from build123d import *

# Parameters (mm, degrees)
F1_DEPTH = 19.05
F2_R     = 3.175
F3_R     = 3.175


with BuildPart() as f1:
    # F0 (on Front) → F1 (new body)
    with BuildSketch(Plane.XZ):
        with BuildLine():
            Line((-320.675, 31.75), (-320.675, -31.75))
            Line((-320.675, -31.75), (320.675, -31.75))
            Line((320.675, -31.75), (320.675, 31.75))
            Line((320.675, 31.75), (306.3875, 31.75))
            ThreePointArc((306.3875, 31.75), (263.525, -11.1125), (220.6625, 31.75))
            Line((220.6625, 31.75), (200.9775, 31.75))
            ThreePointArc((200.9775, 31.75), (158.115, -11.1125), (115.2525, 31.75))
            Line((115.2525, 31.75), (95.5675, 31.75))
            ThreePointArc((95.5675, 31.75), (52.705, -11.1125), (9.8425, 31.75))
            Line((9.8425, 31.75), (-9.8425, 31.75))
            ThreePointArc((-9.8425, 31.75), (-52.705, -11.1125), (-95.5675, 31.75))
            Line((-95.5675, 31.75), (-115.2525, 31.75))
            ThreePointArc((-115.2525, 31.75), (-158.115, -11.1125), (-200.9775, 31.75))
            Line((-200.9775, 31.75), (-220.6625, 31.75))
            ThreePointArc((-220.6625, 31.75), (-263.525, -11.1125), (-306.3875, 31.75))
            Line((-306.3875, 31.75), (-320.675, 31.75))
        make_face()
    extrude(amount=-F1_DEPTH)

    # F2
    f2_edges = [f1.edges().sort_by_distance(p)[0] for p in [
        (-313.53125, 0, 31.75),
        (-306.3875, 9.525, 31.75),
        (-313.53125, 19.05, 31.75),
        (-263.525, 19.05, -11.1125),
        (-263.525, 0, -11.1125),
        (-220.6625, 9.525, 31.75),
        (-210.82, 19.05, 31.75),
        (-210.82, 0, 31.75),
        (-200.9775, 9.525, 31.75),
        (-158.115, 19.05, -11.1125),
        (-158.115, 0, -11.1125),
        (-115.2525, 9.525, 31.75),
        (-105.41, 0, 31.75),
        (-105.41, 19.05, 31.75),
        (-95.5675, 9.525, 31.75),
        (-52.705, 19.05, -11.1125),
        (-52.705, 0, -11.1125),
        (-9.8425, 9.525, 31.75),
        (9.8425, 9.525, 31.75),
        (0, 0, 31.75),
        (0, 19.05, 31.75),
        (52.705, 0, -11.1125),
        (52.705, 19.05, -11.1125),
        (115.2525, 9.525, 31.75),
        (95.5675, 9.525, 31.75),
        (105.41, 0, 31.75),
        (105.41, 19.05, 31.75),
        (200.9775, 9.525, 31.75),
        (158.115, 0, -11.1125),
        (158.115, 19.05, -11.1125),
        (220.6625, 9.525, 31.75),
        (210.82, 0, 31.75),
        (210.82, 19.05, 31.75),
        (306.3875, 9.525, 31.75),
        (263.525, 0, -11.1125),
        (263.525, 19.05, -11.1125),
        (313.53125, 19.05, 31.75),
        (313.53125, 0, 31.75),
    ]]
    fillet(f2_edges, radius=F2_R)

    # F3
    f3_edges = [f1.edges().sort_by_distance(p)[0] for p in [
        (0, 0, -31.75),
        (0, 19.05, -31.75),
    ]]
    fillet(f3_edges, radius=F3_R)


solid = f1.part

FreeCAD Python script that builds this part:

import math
import FreeCAD as App
import Part
import Sketcher
from FreeCAD import Vector
Q = App.Units.Quantity


def edges_at(feature, points):
    """Names of the edges that pass closest to the given points."""
    edges = feature.Shape.Edges
    near = lambda p: min(range(len(edges)), key=lambda i: edges[i].distToShape(Part.Vertex(*p))[0])
    return sorted({f"Edge{near(p) + 1}" for p in points})

doc = App.newDocument("Part")
params = doc.addObject("Spreadsheet::Sheet", "Params")
for row, (alias, value) in enumerate([
    ("sketch1_height", "2.5 in"),
    ("sketch1_radius", "1.6875 in"),
    ("sketch1_width", "25.25 in"),
    ("pad1_length", "0.75 in"),
    ("fillet_radius", "0.125 in"),
    ("fillet2_radius", "0.125 in"),
], start=1):
    params.set(f"A{row}", alias)
    params.set(f"B{row}", "=" + value)
    params.setAlias(f"B{row}", alias)

body = doc.addObject("PartDesign::Body", "Body")

# Sketch on XZ plane
sketch1 = body.newObject("Sketcher::SketchObject", "Sketch")
sketch1.AttachmentSupport = (doc.getObject("XZ_Plane"), [""])
sketch1.MapMode = "FlatFace"
sketch1.addGeometry(Part.LineSegment(Vector(-321, 32, 0), Vector(-321, -32, 0)), False)
sketch1.addGeometry(Part.LineSegment(Vector(-321, -32, 0), Vector(321, -32, 0)), False)
sketch1.addGeometry(Part.LineSegment(Vector(321, -32, 0), Vector(321, 32, 0)), False)
sketch1.addGeometry(Part.LineSegment(Vector(321, 32, 0), Vector(306, 32, 0)), False)
sketch1.addGeometry(Part.ArcOfCircle(Part.Circle(Vector(264, 32, 0), Vector(0, 0, 1), 43), math.radians(180), math.radians(360)), False)
sketch1.addGeometry(Part.LineSegment(Vector(221, 32, 0), Vector(201, 32, 0)), False)
sketch1.addGeometry(Part.ArcOfCircle(Part.Circle(Vector(158, 32, 0), Vector(0, 0, 1), 43), math.radians(180), math.radians(360)), False)
sketch1.addGeometry(Part.LineSegment(Vector(115, 32, 0), Vector(96, 32, 0)), False)
sketch1.addGeometry(Part.ArcOfCircle(Part.Circle(Vector(53, 32, 0), Vector(0, 0, 1), 43), math.radians(180), math.radians(360)), False)
sketch1.addGeometry(Part.LineSegment(Vector(10, 32, 0), Vector(-10, 32, 0)), False)
sketch1.addGeometry(Part.ArcOfCircle(Part.Circle(Vector(-53, 32, 0), Vector(0, 0, 1), 43), math.radians(180), math.radians(360)), False)
sketch1.addGeometry(Part.LineSegment(Vector(-96, 32, 0), Vector(-115, 32, 0)), False)
sketch1.addGeometry(Part.ArcOfCircle(Part.Circle(Vector(-158, 32, 0), Vector(0, 0, 1), 43), math.radians(180), math.radians(360)), False)
sketch1.addGeometry(Part.LineSegment(Vector(-201, 32, 0), Vector(-221, 32, 0)), False)
sketch1.addGeometry(Part.ArcOfCircle(Part.Circle(Vector(-264, 32, 0), Vector(0, 0, 1), 43), math.radians(180), math.radians(360)), False)
sketch1.addGeometry(Part.LineSegment(Vector(-306, 32, 0), Vector(-321, 32, 0)), False)
sketch1.addConstraint(Sketcher.Constraint("Coincident", 0, 2, 1, 1))
sketch1.addConstraint(Sketcher.Constraint("Coincident", 1, 2, 2, 1))
sketch1.addConstraint(Sketcher.Constraint("Coincident", 2, 2, 3, 1))
sketch1.addConstraint(Sketcher.Constraint("Coincident", 3, 2, 4, 2))
sketch1.addConstraint(Sketcher.Constraint("Coincident", 4, 1, 5, 1))
sketch1.addConstraint(Sketcher.Constraint("Coincident", 5, 2, 6, 2))
sketch1.addConstraint(Sketcher.Constraint("Coincident", 6, 1, 7, 1))
sketch1.addConstraint(Sketcher.Constraint("Coincident", 7, 2, 8, 2))
sketch1.addConstraint(Sketcher.Constraint("Coincident", 8, 1, 9, 1))
sketch1.addConstraint(Sketcher.Constraint("Coincident", 9, 2, 10, 2))
sketch1.addConstraint(Sketcher.Constraint("Coincident", 10, 1, 11, 1))
sketch1.addConstraint(Sketcher.Constraint("Coincident", 11, 2, 12, 2))
sketch1.addConstraint(Sketcher.Constraint("Coincident", 12, 1, 13, 1))
sketch1.addConstraint(Sketcher.Constraint("Coincident", 13, 2, 14, 2))
sketch1.addConstraint(Sketcher.Constraint("Coincident", 14, 1, 15, 1))
sketch1.addConstraint(Sketcher.Constraint("Coincident", 15, 2, 0, 1))
sketch1.addConstraint(Sketcher.Constraint("Vertical", 0))
sketch1.addConstraint(Sketcher.Constraint("Horizontal", 1))
sketch1.addConstraint(Sketcher.Constraint("Vertical", 2))
sketch1.addConstraint(Sketcher.Constraint("Horizontal", 3))
sketch1.addConstraint(Sketcher.Constraint("Horizontal", 5))
sketch1.addConstraint(Sketcher.Constraint("Horizontal", 7))
sketch1.addConstraint(Sketcher.Constraint("Horizontal", 9))
sketch1.addConstraint(Sketcher.Constraint("Horizontal", 11))
sketch1.addConstraint(Sketcher.Constraint("Horizontal", 13))
sketch1.addConstraint(Sketcher.Constraint("Horizontal", 15))
sketch1.addConstraint(Sketcher.Constraint("Equal", 4, 6))
sketch1.addConstraint(Sketcher.Constraint("Equal", 6, 8))
sketch1.addConstraint(Sketcher.Constraint("Equal", 8, 10))
sketch1.addConstraint(Sketcher.Constraint("Equal", 10, 12))
sketch1.addConstraint(Sketcher.Constraint("Equal", 12, 14))
sketch1.addConstraint(Sketcher.Constraint("Symmetric", 0, 2, 2, 2, -1, 1))
sketch1.addConstraint(Sketcher.Constraint("Symmetric", 8, 3, 10, 3, -2))
sketch1.addConstraint(Sketcher.Constraint("Symmetric", 6, 3, 12, 3, -2))
sketch1.addConstraint(Sketcher.Constraint("Symmetric", 4, 3, 14, 3, -2))
sketch1.addConstraint(Sketcher.Constraint("Horizontal", 4, 3, 6, 3))
sketch1.addConstraint(Sketcher.Constraint("Horizontal", 6, 3, 8, 3))
sketch1.addConstraint(Sketcher.Constraint("Horizontal", 14, 3, 2, 2))
sketch1.addConstraint(Sketcher.Constraint("Horizontal", 3, 2, 4, 1))
sketch1.addConstraint(Sketcher.Constraint("Horizontal", 5, 2, 6, 1))
sketch1.addConstraint(Sketcher.Constraint("Horizontal", 7, 2, 8, 1))
sketch1.addConstraint(Sketcher.Constraint("Horizontal", 9, 2, 10, 1))
sketch1.addConstraint(Sketcher.Constraint("Horizontal", 11, 2, 12, 1))
sketch1.addConstraint(Sketcher.Constraint("Horizontal", 13, 2, 14, 1))
sketch1.addConstraint(Sketcher.Constraint("Equal", 5, 7))
sketch1.addConstraint(Sketcher.Constraint("Equal", 7, 9))
sketch1.addConstraint(Sketcher.Constraint("DistanceY", 0, 2, 0, 1, Q("2.5 in")))
sketch1.addConstraint(Sketcher.Constraint("Radius", 4, Q("1.6875 in")))
sketch1.addConstraint(Sketcher.Constraint("DistanceX", 1, 1, 1, 2, Q("25.25 in")))
sketch1.addConstraint(Sketcher.Constraint("DistanceX", 8, 3, 4, 3, Q("8.3 in")))
sketch1.setExpression("Constraints[46]", "Params.sketch1_height")
sketch1.setExpression("Constraints[47]", "Params.sketch1_radius")
sketch1.setExpression("Constraints[48]", "Params.sketch1_width")
pad1 = body.newObject("PartDesign::Pad", "Pad")
pad1.Profile = sketch1
pad1.setExpression("Length", "Params.pad1_length")
pad1.Reversed = True
doc.recompute()

fillet = body.newObject("PartDesign::Fillet", "Fillet")
fillet.Base = (pad1, edges_at(pad1, [
    (-313.531, 0, 31.75),
    (-306.387, 9.525, 31.75),
    (-313.531, 19.05, 31.75),
    (-263.525, 19.05, -11.113),
    (-263.525, 0, -11.113),
    (-220.662, 9.525, 31.75),
    (-210.82, 19.05, 31.75),
    (-210.82, 0, 31.75),
    (-200.977, 9.525, 31.75),
    (-158.115, 19.05, -11.113),
    (-158.115, 0, -11.113),
    (-115.252, 9.525, 31.75),
    (-105.41, 0, 31.75),
    (-105.41, 19.05, 31.75),
    (-95.567, 9.525, 31.75),
    (-52.705, 19.05, -11.113),
    (-52.705, 0, -11.113),
    (-9.842, 9.525, 31.75),
    (9.842, 9.525, 31.75),
    (0, 0, 31.75),
    (0, 19.05, 31.75),
    (52.705, 0, -11.113),
    (52.705, 19.05, -11.113),
    (115.252, 9.525, 31.75),
    (95.567, 9.525, 31.75),
    (105.41, 0, 31.75),
    (105.41, 19.05, 31.75),
    (200.977, 9.525, 31.75),
    (158.115, 0, -11.113),
    (158.115, 19.05, -11.113),
    (220.662, 9.525, 31.75),
    (210.82, 0, 31.75),
    (210.82, 19.05, 31.75),
    (306.387, 9.525, 31.75),
    (263.525, 0, -11.113),
    (263.525, 19.05, -11.113),
    (313.531, 19.05, 31.75),
    (313.531, 0, 31.75),
]))
fillet.setExpression("Radius", "Params.fillet_radius")
doc.recompute()

fillet2 = body.newObject("PartDesign::Fillet", "Fillet001")
fillet2.Base = (fillet, edges_at(fillet, [(0, 0, -31.75), (0, 19.05, -31.75)]))
fillet2.setExpression("Radius", "Params.fillet2_radius")

doc.recompute()
